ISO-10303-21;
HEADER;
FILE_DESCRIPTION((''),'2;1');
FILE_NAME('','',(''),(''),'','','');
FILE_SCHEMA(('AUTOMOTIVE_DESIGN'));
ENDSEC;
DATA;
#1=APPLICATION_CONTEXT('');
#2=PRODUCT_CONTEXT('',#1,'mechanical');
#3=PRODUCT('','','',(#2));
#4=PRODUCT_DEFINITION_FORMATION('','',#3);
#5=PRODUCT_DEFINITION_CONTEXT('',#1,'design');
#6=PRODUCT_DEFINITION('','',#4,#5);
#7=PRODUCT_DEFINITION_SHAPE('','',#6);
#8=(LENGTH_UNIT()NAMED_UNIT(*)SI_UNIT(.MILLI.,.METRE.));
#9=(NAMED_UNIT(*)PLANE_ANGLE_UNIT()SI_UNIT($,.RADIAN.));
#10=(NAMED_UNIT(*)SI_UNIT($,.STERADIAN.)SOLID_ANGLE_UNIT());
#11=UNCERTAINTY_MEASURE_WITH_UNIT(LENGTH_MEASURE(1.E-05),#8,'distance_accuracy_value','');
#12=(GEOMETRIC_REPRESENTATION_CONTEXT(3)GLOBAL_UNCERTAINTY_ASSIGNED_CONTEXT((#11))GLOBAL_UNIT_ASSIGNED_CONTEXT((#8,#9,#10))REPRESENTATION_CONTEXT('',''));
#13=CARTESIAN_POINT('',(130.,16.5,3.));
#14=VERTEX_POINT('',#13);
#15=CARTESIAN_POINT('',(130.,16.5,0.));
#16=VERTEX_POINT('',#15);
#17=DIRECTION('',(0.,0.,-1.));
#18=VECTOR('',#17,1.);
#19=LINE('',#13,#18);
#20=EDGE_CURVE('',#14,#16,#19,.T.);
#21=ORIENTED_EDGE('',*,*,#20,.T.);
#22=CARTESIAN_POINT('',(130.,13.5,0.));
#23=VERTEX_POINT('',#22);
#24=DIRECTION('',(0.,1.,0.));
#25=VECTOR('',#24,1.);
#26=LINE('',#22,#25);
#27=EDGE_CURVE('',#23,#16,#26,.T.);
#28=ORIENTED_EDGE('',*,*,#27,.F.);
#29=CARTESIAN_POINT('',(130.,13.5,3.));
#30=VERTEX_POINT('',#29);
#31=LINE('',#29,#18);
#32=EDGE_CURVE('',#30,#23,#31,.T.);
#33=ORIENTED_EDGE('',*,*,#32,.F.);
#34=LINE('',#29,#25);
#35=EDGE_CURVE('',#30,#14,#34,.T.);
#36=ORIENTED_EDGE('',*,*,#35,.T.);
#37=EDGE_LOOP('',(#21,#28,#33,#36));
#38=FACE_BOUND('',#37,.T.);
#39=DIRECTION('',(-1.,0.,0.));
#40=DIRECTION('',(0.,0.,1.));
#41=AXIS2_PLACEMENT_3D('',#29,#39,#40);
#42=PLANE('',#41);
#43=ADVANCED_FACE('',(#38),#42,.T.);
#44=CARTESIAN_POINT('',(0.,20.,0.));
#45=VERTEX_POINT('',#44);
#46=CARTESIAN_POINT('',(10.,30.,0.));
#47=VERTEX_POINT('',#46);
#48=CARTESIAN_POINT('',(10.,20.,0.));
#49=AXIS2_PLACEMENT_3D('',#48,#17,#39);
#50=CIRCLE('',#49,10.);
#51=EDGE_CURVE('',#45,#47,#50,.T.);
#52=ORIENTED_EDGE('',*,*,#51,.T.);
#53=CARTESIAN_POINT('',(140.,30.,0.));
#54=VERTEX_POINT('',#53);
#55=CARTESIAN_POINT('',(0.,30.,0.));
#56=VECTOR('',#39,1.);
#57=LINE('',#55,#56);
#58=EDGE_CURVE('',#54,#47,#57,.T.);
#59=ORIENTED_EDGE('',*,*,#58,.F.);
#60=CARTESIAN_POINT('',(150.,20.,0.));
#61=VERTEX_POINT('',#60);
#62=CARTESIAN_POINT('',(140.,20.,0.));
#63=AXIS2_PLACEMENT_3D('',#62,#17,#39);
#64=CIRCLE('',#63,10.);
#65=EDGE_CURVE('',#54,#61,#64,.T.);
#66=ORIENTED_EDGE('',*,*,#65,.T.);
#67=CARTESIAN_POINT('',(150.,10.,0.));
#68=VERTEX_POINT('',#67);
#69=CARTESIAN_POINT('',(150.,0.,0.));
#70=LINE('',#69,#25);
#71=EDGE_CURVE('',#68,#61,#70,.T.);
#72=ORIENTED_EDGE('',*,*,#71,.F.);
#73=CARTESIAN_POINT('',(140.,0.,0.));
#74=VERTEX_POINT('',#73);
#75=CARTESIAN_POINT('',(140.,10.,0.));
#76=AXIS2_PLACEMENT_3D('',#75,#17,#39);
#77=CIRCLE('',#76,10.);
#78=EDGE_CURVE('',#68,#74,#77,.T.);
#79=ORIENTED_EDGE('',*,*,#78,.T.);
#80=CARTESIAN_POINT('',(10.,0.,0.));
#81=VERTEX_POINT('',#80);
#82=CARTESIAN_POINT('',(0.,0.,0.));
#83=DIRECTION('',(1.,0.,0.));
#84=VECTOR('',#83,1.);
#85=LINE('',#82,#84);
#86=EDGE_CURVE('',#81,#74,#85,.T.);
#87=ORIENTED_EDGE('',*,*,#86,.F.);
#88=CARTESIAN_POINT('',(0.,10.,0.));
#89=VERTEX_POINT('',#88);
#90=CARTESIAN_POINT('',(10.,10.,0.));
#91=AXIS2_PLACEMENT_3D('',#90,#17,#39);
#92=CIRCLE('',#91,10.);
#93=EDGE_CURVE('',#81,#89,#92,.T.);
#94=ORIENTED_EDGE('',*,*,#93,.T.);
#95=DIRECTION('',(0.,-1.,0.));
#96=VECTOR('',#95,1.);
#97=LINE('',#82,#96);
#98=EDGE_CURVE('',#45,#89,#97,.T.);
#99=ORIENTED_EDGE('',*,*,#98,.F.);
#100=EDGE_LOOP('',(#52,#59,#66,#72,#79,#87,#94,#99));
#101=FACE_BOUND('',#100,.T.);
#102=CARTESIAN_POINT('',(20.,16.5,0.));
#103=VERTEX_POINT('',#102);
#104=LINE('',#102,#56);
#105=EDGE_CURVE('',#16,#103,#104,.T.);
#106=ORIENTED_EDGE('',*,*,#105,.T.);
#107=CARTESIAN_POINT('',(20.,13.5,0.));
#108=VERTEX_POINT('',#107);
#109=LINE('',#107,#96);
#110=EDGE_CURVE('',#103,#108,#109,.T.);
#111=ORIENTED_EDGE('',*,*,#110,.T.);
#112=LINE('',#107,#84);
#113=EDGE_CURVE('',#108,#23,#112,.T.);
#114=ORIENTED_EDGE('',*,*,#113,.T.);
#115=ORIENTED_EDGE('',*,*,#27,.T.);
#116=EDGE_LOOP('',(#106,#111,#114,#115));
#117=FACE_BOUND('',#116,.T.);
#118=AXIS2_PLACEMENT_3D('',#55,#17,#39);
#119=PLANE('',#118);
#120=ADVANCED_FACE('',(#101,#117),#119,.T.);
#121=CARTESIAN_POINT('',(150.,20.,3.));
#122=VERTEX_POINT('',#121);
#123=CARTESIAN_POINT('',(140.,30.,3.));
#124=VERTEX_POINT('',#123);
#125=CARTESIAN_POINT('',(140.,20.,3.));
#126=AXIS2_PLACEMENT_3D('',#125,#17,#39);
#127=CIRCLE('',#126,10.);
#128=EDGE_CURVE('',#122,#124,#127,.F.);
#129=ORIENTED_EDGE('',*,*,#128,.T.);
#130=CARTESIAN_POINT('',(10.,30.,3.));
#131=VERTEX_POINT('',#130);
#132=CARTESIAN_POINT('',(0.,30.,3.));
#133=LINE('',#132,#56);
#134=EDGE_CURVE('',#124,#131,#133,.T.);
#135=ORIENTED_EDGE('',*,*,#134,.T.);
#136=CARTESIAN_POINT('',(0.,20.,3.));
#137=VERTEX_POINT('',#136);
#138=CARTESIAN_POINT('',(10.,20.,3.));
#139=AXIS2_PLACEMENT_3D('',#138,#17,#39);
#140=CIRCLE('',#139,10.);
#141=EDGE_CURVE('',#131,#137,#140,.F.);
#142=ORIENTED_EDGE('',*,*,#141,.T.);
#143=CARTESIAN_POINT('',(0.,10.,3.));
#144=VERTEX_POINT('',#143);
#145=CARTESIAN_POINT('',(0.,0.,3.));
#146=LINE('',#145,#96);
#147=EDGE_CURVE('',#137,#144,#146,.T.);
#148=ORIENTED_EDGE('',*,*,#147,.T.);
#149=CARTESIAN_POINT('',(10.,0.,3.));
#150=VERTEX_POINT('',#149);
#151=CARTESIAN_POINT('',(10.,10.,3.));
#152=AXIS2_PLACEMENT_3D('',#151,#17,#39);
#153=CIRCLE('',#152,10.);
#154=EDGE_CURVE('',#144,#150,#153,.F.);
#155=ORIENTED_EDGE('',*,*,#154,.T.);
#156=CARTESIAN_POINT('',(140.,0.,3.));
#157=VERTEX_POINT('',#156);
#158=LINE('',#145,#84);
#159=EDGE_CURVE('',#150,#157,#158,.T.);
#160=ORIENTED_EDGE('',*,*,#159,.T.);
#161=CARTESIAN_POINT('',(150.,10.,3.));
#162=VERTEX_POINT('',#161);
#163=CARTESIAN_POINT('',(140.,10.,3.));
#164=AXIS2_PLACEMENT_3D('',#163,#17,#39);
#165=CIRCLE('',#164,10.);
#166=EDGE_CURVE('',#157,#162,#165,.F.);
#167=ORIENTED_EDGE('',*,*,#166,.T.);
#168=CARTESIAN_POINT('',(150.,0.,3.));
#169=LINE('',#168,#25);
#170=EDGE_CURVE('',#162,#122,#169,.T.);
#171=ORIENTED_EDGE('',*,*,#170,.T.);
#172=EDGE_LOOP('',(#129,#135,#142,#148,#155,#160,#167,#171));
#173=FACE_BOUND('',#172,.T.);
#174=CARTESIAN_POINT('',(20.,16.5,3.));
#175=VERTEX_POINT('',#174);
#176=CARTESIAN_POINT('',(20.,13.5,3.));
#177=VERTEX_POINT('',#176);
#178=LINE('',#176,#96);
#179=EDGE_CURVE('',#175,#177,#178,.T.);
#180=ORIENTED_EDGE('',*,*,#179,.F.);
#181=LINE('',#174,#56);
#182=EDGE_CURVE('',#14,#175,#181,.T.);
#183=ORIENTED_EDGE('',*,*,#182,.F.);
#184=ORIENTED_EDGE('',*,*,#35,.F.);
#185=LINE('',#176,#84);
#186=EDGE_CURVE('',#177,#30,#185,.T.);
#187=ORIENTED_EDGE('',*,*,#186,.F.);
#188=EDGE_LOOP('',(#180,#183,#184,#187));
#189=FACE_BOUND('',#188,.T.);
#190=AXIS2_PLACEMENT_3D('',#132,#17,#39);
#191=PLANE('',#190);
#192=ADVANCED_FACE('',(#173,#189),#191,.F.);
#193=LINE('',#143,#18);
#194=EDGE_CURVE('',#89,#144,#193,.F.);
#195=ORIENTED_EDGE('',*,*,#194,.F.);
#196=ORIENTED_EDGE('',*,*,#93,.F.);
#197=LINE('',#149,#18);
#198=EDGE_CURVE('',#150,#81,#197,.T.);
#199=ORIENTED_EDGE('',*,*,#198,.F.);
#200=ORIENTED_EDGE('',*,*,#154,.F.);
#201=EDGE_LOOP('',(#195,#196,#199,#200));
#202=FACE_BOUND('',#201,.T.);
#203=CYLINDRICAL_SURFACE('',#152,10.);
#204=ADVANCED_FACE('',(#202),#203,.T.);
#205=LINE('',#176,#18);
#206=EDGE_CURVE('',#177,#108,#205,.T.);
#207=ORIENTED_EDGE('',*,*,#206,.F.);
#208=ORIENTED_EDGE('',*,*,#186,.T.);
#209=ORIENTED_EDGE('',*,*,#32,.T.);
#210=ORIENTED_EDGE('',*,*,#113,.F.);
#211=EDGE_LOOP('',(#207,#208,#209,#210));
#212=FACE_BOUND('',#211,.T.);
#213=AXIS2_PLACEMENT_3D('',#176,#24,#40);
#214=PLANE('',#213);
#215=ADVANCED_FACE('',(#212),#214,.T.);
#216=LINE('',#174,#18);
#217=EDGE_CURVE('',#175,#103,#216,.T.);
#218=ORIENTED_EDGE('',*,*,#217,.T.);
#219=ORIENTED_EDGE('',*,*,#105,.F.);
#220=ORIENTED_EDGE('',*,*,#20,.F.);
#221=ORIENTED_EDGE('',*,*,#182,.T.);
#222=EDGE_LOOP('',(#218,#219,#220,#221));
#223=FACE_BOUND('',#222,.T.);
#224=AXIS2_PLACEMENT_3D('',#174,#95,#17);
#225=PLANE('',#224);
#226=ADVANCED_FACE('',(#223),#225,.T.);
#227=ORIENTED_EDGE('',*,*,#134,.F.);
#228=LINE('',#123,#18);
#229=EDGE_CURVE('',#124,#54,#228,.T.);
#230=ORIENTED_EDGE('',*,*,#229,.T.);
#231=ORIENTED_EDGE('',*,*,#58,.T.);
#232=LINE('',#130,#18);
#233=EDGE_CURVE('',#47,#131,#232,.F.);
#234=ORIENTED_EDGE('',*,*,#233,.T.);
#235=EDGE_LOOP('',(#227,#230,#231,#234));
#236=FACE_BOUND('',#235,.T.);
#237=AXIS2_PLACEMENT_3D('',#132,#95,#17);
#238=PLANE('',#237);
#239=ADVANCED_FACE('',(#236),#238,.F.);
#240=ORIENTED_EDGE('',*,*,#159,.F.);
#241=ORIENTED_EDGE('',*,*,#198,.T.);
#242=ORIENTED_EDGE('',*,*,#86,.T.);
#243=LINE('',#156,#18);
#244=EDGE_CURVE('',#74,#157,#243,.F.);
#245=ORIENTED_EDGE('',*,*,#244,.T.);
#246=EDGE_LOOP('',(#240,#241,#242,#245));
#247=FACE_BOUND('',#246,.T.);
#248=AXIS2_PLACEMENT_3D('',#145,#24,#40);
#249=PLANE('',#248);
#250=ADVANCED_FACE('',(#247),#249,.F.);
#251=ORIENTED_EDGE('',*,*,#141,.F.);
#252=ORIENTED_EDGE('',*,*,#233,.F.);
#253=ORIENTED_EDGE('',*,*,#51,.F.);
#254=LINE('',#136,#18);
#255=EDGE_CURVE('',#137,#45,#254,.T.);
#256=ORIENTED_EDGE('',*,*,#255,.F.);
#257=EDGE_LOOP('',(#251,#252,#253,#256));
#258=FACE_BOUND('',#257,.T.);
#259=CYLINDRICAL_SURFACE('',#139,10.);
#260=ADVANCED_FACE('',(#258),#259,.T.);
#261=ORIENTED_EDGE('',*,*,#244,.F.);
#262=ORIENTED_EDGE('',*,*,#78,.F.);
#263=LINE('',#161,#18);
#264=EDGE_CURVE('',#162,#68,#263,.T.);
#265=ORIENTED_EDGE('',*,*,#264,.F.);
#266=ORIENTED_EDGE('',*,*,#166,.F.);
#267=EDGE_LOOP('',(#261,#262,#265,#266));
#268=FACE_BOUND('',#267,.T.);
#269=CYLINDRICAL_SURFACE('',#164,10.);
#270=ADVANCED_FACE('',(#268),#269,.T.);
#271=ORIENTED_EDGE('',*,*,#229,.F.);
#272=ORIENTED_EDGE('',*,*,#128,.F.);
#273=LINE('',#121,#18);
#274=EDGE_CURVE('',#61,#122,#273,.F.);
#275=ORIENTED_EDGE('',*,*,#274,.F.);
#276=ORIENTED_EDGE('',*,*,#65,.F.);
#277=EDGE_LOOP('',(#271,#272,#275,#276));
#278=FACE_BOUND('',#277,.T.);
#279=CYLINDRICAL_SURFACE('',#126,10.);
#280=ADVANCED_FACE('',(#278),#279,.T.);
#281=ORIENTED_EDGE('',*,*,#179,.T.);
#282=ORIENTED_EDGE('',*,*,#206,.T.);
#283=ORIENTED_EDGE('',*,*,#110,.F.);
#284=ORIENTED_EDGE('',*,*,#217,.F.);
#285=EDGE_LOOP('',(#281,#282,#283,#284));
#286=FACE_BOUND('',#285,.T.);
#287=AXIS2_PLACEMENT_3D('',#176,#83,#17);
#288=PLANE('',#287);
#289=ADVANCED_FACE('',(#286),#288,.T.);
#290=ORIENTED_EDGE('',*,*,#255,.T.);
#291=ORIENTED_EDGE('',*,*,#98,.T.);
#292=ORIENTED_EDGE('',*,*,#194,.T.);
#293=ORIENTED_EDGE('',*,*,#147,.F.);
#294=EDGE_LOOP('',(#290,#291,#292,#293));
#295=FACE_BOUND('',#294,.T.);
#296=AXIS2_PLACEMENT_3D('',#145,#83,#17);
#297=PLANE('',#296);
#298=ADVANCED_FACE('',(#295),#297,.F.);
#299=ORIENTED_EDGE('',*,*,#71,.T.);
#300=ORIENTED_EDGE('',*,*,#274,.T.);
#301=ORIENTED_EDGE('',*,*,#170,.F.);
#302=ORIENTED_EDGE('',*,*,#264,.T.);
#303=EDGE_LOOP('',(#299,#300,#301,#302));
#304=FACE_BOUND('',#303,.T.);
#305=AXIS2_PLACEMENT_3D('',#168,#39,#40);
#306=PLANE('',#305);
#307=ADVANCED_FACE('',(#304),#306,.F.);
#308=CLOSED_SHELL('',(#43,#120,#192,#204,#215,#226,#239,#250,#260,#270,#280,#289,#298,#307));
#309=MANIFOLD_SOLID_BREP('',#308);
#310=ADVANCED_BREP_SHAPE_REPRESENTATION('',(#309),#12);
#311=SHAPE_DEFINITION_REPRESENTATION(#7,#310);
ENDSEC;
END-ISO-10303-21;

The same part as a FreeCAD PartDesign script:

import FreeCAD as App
import Part
import Sketcher

V = App.Vector


def edges_at(feature, points):
    """Names of the edges that pass closest to the given points."""
    edges = feature.Shape.Edges
    near = lambda p: min(range(len(edges)), key=lambda i: edges[i].distToShape(Part.Vertex(*p))[0])
    return sorted({f"Edge{near(p) + 1}" for p in points})


def add_polygon(sketch, points):
    """Adds a closed chain of lines whose ends are joined by coincident constraints."""
    first, n = sketch.GeometryCount, len(points)
    for a, b in zip(points, points[1:] + points[:1]):
        sketch.addGeometry(Part.LineSegment(App.Vector(*a, 0), App.Vector(*b, 0)), False)
    for i in range(n):
        sketch.addConstraint(Sketcher.Constraint("Coincident", first + i, 2, first + (i + 1) % n, 1))

doc = App.newDocument("Part")
body = doc.addObject("PartDesign::Body", "Body")

sketch1 = body.newObject("Sketcher::SketchObject", "Sketch")
sketch1.AttachmentSupport = (doc.getObject("XY_Plane"), [""])
sketch1.MapMode = "FlatFace"
add_polygon(sketch1, [(0, 30), (0, 0), (150, 0), (150, 30)])
add_polygon(sketch1, [(130, 13.5), (20, 13.5), (20, 16.5), (130, 16.5)])
sketch1.addConstraint(Sketcher.Constraint("Vertical", 0))
sketch1.addConstraint(Sketcher.Constraint("Horizontal", 1))
sketch1.addConstraint(Sketcher.Constraint("Vertical", 2))
sketch1.addConstraint(Sketcher.Constraint("Horizontal", 3))
sketch1.addConstraint(Sketcher.Constraint("Horizontal", 4))
sketch1.addConstraint(Sketcher.Constraint("Vertical", 5))
sketch1.addConstraint(Sketcher.Constraint("Horizontal", 6))
sketch1.addConstraint(Sketcher.Constraint("Vertical", 7))
sketch1.addConstraint(Sketcher.Constraint("Coincident", 0, 2, -1, 1))
sketch1.addConstraint(Sketcher.Constraint("DistanceX", 1, 1, 1, 2, 150.0))
sketch1.addConstraint(Sketcher.Constraint("DistanceX", 4, 2, 4, 1, 110.0))
sketch1.addConstraint(Sketcher.Constraint("DistanceY", 0, 2, 0, 1, 30.0))
sketch1.addConstraint(Sketcher.Constraint("DistanceY", 5, 1, 5, 2, 3.0))
sketch1.addConstraint(Sketcher.Constraint("DistanceX", -1, 1, 4, 2, 20.0))
sketch1.addConstraint(Sketcher.Constraint("DistanceY", -1, 1, 4, 2, 13.5))
pad1 = body.newObject("PartDesign::Pad", "Pad")
pad1.Profile = sketch1
pad1.Length = 3
doc.recompute()

fillet = body.newObject("PartDesign::Fillet", "Fillet")
fillet.Base = (pad1, edges_at(pad1, [
    (0, 30, 1.5),
    (150, 30, 1.5),
    (150, 0, 1.5),
    (0, 0, 1.5),
]))
fillet.Radius = 10

doc.recompute()
